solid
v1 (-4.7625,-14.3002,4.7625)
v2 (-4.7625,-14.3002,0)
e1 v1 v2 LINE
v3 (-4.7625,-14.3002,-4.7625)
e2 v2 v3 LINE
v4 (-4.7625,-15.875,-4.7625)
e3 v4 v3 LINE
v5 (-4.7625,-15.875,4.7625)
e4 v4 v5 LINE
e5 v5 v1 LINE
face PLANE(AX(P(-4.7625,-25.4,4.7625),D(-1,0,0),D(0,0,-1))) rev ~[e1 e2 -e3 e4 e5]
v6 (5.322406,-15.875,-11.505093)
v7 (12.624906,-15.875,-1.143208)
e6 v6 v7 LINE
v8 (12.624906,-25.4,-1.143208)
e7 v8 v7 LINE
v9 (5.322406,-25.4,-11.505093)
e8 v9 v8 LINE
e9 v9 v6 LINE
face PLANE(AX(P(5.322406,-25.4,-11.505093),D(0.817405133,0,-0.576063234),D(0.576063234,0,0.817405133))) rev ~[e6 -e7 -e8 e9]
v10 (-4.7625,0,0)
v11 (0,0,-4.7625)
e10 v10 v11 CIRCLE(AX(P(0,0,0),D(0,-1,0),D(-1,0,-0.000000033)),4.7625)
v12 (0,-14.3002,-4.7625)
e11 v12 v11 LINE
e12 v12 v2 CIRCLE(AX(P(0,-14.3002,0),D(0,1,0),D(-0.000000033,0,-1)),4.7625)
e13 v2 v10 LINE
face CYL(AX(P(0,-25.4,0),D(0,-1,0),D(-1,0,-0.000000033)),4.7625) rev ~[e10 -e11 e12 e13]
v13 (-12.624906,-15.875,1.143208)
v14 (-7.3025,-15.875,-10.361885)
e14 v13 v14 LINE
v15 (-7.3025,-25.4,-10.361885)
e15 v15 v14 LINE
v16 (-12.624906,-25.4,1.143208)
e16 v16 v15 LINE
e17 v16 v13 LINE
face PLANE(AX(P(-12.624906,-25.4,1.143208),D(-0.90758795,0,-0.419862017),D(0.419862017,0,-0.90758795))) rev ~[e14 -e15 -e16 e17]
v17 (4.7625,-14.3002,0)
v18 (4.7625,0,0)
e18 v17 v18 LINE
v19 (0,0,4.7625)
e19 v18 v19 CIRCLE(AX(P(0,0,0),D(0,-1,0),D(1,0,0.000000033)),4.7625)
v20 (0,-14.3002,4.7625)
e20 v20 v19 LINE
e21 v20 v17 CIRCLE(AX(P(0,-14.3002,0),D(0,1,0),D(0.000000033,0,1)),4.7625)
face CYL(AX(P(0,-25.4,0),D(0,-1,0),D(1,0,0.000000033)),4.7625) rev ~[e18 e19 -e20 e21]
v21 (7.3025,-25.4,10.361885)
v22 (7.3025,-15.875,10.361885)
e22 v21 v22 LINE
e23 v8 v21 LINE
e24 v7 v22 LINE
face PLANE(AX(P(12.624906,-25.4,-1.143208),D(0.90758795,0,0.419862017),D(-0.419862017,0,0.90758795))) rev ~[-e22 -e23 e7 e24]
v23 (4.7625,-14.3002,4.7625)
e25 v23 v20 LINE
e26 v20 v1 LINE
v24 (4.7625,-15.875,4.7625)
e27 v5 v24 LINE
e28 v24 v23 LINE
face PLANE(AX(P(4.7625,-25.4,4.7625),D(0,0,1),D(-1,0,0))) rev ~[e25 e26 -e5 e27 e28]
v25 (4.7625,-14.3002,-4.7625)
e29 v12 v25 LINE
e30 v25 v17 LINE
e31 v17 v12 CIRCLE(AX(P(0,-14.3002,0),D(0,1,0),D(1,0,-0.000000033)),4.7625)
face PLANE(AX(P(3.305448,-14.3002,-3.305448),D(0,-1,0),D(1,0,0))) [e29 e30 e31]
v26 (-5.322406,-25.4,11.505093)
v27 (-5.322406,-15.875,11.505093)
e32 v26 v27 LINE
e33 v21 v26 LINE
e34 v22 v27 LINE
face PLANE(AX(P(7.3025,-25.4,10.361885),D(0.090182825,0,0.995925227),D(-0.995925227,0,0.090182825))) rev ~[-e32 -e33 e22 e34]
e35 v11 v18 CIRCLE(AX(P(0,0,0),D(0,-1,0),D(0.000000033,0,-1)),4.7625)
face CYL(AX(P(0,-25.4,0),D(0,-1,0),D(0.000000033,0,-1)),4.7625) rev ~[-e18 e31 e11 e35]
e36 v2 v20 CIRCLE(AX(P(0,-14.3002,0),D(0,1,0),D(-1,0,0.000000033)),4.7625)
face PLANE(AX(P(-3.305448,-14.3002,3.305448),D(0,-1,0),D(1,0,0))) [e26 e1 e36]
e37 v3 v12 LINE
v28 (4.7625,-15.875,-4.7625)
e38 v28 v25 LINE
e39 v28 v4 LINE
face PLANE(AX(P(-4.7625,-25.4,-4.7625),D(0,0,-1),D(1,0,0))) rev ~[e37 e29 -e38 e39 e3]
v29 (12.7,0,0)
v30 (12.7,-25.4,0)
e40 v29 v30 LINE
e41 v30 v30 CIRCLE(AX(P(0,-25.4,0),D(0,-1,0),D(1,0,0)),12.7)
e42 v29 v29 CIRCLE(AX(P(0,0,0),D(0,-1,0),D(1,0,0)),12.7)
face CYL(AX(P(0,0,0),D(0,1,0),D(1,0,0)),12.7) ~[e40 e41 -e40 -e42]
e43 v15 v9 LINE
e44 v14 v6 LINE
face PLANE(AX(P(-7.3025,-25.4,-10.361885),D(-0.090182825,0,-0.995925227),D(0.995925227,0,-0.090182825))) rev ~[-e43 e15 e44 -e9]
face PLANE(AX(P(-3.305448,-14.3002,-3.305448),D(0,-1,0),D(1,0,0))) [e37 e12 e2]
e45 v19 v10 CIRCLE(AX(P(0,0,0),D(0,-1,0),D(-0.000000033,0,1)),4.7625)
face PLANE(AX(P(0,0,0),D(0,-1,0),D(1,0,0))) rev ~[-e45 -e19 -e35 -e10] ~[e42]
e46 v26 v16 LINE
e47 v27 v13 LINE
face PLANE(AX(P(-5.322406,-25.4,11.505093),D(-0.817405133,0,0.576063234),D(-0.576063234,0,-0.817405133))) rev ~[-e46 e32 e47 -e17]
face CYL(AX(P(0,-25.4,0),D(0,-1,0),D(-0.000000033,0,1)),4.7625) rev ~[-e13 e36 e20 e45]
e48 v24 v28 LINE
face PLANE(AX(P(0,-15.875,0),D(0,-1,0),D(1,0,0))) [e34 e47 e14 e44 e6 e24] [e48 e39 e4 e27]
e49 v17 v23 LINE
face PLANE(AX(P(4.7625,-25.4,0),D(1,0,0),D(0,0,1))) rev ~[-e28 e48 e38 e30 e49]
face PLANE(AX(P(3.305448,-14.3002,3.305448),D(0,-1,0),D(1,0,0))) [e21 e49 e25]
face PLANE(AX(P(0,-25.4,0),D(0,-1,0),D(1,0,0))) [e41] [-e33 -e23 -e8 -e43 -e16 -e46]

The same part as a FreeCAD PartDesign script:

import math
import FreeCAD as App
import Part
import Sketcher
from FreeCAD import Vector
Q = App.Units.Quantity

doc = App.newDocument("Part")
body = doc.addObject("PartDesign::Body", "Body")

# Sketch on XZ plane
sketch1 = doc.addObject("Sketcher::SketchObject", "Sketch")
body.addObject(sketch1)
sketch1.AttachmentSupport = (doc.XZ_Plane, [""])
sketch1.MapMode = "FlatFace"
sketch1.addGeometry(Part.Circle(Vector(0, 0, 0), Vector(0, 0, 1), 13), False)
sketch1.addConstraint([
    Sketcher.Constraint("Coincident", 0, 3, -1, 1),
    Sketcher.Constraint("Diameter", 0, Q("1 in")),
])
pad1 = doc.addObject("PartDesign::Pad", "Pad")
body.addObject(pad1)
pad1.Profile = sketch1
pad1.Length = Q("1 in")

# Sketch on XZ plane
sketch2 = doc.addObject("Sketcher::SketchObject", "Sketch001")
body.addObject(sketch2)
sketch2.AttachmentSupport = (doc.XZ_Plane, [""])
sketch2.MapMode = "FlatFace"
sketch2.AttachmentOffset = App.Placement(Vector(0, 0, 1 * 25.4), App.Rotation())
sketch2.addGeometry([
    Part.ArcOfCircle(Part.Circle(Vector(0, 0, 0), Vector(0, 0, 1), 4.8), math.radians(0), math.radians(90)),
    Part.ArcOfCircle(Part.Circle(Vector(0, 0, 0), Vector(0, 0, 1), 4.8), math.radians(90), math.radians(180)),
    Part.ArcOfCircle(Part.Circle(Vector(0, 0, 0), Vector(0, 0, 1), 4.8), math.radians(-180), math.radians(-90)),
    Part.ArcOfCircle(Part.Circle(Vector(0, 0, 0), Vector(0, 0, 1), 4.8), math.radians(-90), math.radians(0)),
], False)
sketch2.addConstraint([
    Sketcher.Constraint("Tangent", 0, 2, 1, 1),
    Sketcher.Constraint("Tangent", 1, 2, 2, 1),
    Sketcher.Constraint("Tangent", 2, 2, 3, 1),
    Sketcher.Constraint("Tangent", 3, 2, 0, 1),
    Sketcher.Constraint("Coincident", 0, 3, -1, 1),
    Sketcher.Constraint("Equal", 0, 1),
    Sketcher.Constraint("PointOnObject", 0, 2, -2),
    Sketcher.Constraint("PointOnObject", 1, 2, -1),
    Sketcher.Constraint("PointOnObject", 2, 2, -2),
    Sketcher.Constraint("PointOnObject", 3, 2, -1),
    Sketcher.Constraint("Radius", 0, Q("0.1875 in")),
])
pocket1 = doc.addObject("PartDesign::Pocket", "Pocket")
body.addObject(pocket1)
pocket1.Profile = sketch2
pocket1.Type = "ThroughAll"

# Sketch on XZ plane
sketch3 = doc.addObject("Sketcher::SketchObject", "Sketch002")
body.addObject(sketch3)
sketch3.AttachmentSupport = (doc.XZ_Plane, [""])
sketch3.MapMode = "FlatFace"
sketch3.AttachmentOffset = App.Placement(Vector(0, 0, 1 * 25.4), App.Rotation())
sketch3.addGeometry([
    Part.LineSegment(Vector(0, 4.8, 0), Vector(-4.8, 4.8, 0)),  # 0
    Part.LineSegment(Vector(-4.8, 4.8, 0), Vector(-4.8, 0, 0)),  # 1
    Part.ArcOfCircle(Part.Circle(Vector(0, 0, 0), Vector(0, 0, 1), 4.8), math.radians(90), math.radians(180)),  # 2
    Part.LineSegment(Vector(4.8, 4.8, 0), Vector(0, 4.8, 0)),  # 3
    Part.ArcOfCircle(Part.Circle(Vector(0, 0, 0), Vector(0, 0, 1), 4.8), math.radians(0), math.radians(90)),  # 4
    Part.LineSegment(Vector(4.8, 0, 0), Vector(4.8, 4.8, 0)),  # 5
    Part.ArcOfCircle(Part.Circle(Vector(0, 0, 0), Vector(0, 0, 1), 4.8), math.radians(-180), math.radians(-90)),  # 6
    Part.LineSegment(Vector(-4.8, 0, 0), Vector(-4.8, -4.8, 0)),  # 7
    Part.LineSegment(Vector(-4.8, -4.8, 0), Vector(0, -4.8, 0)),  # 8
    Part.LineSegment(Vector(4.8, -4.8, 0), Vector(4.8, 0, 0)),  # 9
    Part.ArcOfCircle(Part.Circle(Vector(0, 0, 0), Vector(0, 0, 1), 4.8), math.radians(-90), math.radians(0)),  # 10
    Part.LineSegment(Vector(0, -4.8, 0), Vector(4.8, -4.8, 0)),  # 11
], False)
sketch3.addConstraint([
    Sketcher.Constraint("Coincident", 0, 2, 1, 1),
    Sketcher.Constraint("Tangent", 1, 2, 2, 2),
    Sketcher.Constraint("Tangent", 2, 1, 0, 1),
    Sketcher.Constraint("Tangent", 3, 2, 4, 2),
    Sketcher.Constraint("Tangent", 4, 1, 5, 1),
    Sketcher.Constraint("Coincident", 5, 2, 3, 1),
    Sketcher.Constraint("Tangent", 6, 1, 7, 1),
    Sketcher.Constraint("Coincident", 7, 2, 8, 1),
    Sketcher.Constraint("Tangent", 8, 2, 6, 2),
    Sketcher.Constraint("Tangent", 9, 2, 10, 2),
    Sketcher.Constraint("Tangent", 10, 1, 11, 1),
    Sketcher.Constraint("Coincident", 11, 2, 9, 1),
    Sketcher.Constraint("Horizontal", 0),
    Sketcher.Constraint("Vertical", 1),
    Sketcher.Constraint("Horizontal", 3),
    Sketcher.Constraint("Vertical", 5),
    Sketcher.Constraint("Vertical", 7),
    Sketcher.Constraint("Horizontal", 8),
    Sketcher.Constraint("Vertical", 9),
    Sketcher.Constraint("Horizontal", 11),
    Sketcher.Constraint("Coincident", 2, 3, -1, 1),
    Sketcher.Constraint("Coincident", 4, 3, -1, 1),
    Sketcher.Constraint("Coincident", 6, 3, -1, 1),
    Sketcher.Constraint("Coincident", 10, 3, -1, 1),
    Sketcher.Constraint("Equal", 2, 4),
    Sketcher.Constraint("Equal", 4, 6),
    Sketcher.Constraint("Equal", 6, 10),
    Sketcher.Constraint("Radius", 2, Q("0.1875 in")),
])
pocket2 = doc.addObject("PartDesign::Pocket", "Pocket001")
body.addObject(pocket2)
pocket2.Profile = sketch3
pocket2.Length = Q("0.437 in")

# Sketch on XZ plane
sketch4 = doc.addObject("Sketcher::SketchObject", "Sketch003")
body.addObject(sketch4)
sketch4.AttachmentSupport = (doc.XZ_Plane, [""])
sketch4.MapMode = "FlatFace"
sketch4.AttachmentOffset = App.Placement(Vector(0, 0, 1 * 25.4), App.Rotation())
sketch4.addGeometry([
    Part.LineSegment(Vector(-13, 1, 0), Vector(-7, -10, 0)),  # 0
    Part.LineSegment(Vector(-7, -10, 0), Vector(5, -12, 0)),  # 1
    Part.LineSegment(Vector(5, -12, 0), Vector(13, -1, 0)),  # 2
    Part.LineSegment(Vector(13, -1, 0), Vector(7, 10, 0)),  # 3
    Part.LineSegment(Vector(7, 10, 0), Vector(-5, 12, 0)),  # 4
    Part.LineSegment(Vector(-5, 12, 0), Vector(-13, 1, 0)),  # 5
], False)
sketch4.addConstraint([
    Sketcher.Constraint("Coincident", 0, 2, 1, 1),
    Sketcher.Constraint("Coincident", 1, 2, 2, 1),
    Sketcher.Constraint("Coincident", 2, 2, 3, 1),
    Sketcher.Constraint("Coincident", 3, 2, 4, 1),
    Sketcher.Constraint("Coincident", 4, 2, 5, 1),
    Sketcher.Constraint("Coincident", 5, 2, 0, 1),
    Sketcher.Constraint("Symmetric", 0, 2, 3, 2, -1, 1),
    Sketcher.Constraint("Symmetric", 1, 2, 4, 2, -1, 1),
    Sketcher.Constraint("Symmetric", 2, 2, 5, 2, -1, 1),
    Sketcher.Constraint("Equal", 0, 1),
    Sketcher.Constraint("Equal", 1, 2),
    Sketcher.Constraint("DistanceX", 0, 2, 3, 2, Q("0.575 in")),
    Sketcher.Constraint("DistanceX", 1, 2, 2, 2, Q("0.2875 in")),
    Sketcher.Constraint("DistanceY", 2, 2, 4, 2, 12.648301),
    Sketcher.Constraint("Distance", 0, 12.67656),
])
pocket3 = doc.addObject("PartDesign::Pocket", "Pocket002")
body.addObject(pocket3)
pocket3.Profile = sketch4
pocket3.Length = Q("0.375 in")

doc.recompute()
